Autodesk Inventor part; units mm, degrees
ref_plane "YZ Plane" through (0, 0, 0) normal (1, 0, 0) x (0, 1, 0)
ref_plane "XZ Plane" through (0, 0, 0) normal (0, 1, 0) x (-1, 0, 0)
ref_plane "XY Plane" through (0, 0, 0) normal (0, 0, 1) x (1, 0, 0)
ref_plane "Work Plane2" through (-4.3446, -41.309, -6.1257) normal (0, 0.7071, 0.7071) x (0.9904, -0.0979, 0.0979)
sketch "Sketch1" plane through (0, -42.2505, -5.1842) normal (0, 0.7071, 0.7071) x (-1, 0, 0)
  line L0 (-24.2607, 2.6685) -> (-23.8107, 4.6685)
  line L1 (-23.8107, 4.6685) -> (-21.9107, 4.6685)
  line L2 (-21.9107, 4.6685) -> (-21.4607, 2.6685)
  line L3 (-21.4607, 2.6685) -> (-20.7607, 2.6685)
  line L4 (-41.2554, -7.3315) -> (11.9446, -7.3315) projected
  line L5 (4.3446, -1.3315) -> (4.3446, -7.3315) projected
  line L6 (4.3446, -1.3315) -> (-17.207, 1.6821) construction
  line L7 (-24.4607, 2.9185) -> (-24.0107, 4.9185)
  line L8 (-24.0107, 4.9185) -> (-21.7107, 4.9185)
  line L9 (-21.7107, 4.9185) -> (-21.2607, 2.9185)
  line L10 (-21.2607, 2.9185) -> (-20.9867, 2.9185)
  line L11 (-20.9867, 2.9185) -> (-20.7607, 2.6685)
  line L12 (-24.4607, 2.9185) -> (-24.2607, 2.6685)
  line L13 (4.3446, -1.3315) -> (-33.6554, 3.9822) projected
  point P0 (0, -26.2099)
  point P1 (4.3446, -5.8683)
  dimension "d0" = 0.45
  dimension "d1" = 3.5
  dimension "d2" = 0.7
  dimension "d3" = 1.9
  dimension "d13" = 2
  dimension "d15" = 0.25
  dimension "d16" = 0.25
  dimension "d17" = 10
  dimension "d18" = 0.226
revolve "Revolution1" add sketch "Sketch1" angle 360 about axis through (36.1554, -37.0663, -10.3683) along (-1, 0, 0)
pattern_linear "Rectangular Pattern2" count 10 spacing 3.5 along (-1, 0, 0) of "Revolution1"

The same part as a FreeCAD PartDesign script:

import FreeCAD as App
import Part
import Sketcher

doc = App.newDocument("Part")
params = doc.addObject("Spreadsheet::Sheet", "Params")
for row, (alias, value) in enumerate([
    ("sketch1_width", "1.9 mm"),
    ("sketch1_width2", "0.7 mm"),
    ("revolution_angle", "360 deg"),
    ("linearpattern_pitch", "3.5 mm"),
], start=1):
    params.set(f"A{row}", alias)
    params.set(f"B{row}", "=" + value)
    params.setAlias(f"B{row}", alias)

body = doc.addObject("PartDesign::Body", "Body")
body.AllowCompound = True

# Sketch on an angled plane
sketch1 = body.newObject("Sketcher::SketchObject", "Sketch")
sketch1.Placement = App.Placement(App.Vector(0, -42.2505, -5.1842), App.Rotation(App.Vector(-1, 0, 0), App.Vector(0, -0.707106781, 0.707106781), App.Vector(0, 0.707106781, 0.707106781), "ZXY"))
sketch1.addGeometry([
    Part.LineSegment(App.Vector(-24.4607, 2.9185, 0), App.Vector(-24.2607, 2.6685, 0)),  # 0
    Part.LineSegment(App.Vector(-24.2607, 2.6685, 0), App.Vector(-23.8107, 4.6685, 0)),  # 1
    Part.LineSegment(App.Vector(-23.8107, 4.6685, 0), App.Vector(-21.9107, 4.6685, 0)),  # 2
    Part.LineSegment(App.Vector(-21.9107, 4.6685, 0), App.Vector(-21.4607, 2.6685, 0)),  # 3
    Part.LineSegment(App.Vector(-21.4607, 2.6685, 0), App.Vector(-20.7607, 2.6685, 0)),  # 4
    Part.LineSegment(App.Vector(-20.7607, 2.6685, 0), App.Vector(-20.9867, 2.9185, 0)),  # 5
    Part.LineSegment(App.Vector(-20.9867, 2.9185, 0), App.Vector(-21.2607, 2.9185, 0)),  # 6
    Part.LineSegment(App.Vector(-21.2607, 2.9185, 0), App.Vector(-21.7107, 4.9185, 0)),  # 7
    Part.LineSegment(App.Vector(-21.7107, 4.9185, 0), App.Vector(-24.0107, 4.9185, 0)),  # 8
    Part.LineSegment(App.Vector(-24.0107, 4.9185, 0), App.Vector(-24.4607, 2.9185, 0)),  # 9
], False)
sketch1.addGeometry(Part.LineSegment(App.Vector(-24.4607, -7.331495, 0), App.Vector(-20.7607, -7.331495, 0)), True)  # axis
sketch1.addConstraint([
    Sketcher.Constraint("Coincident", 0, 2, 1, 1),
    Sketcher.Constraint("Coincident", 1, 2, 2, 1),
    Sketcher.Constraint("Coincident", 2, 2, 3, 1),
    Sketcher.Constraint("Coincident", 3, 2, 4, 1),
    Sketcher.Constraint("Coincident", 4, 2, 5, 1),
    Sketcher.Constraint("Coincident", 5, 2, 6, 1),
    Sketcher.Constraint("Coincident", 6, 2, 7, 1),
    Sketcher.Constraint("Coincident", 7, 2, 8, 1),
    Sketcher.Constraint("Coincident", 8, 2, 9, 1),
    Sketcher.Constraint("Coincident", 9, 2, 0, 1),
    Sketcher.Constraint("Horizontal", 2),
    Sketcher.Constraint("Horizontal", 4),
    Sketcher.Constraint("Horizontal", 6),
    Sketcher.Constraint("Horizontal", 8),
    Sketcher.Constraint("Horizontal", 10),
    Sketcher.Constraint("Parallel", 3, 7),
    Sketcher.Constraint("Parallel", 1, 9),
    Sketcher.Constraint("Horizontal", 0, 2, 3, 2),
    Sketcher.Constraint("Horizontal", 6, 2, 9, 2),
    Sketcher.Constraint("Vertical", 9, 2, 10, 1),
    Sketcher.Constraint("Vertical", 4, 2, 10, 2),
    Sketcher.Constraint("Equal", 1, 3),
    Sketcher.Constraint("Equal", 3, 7),
    Sketcher.Constraint("DistanceX", 2, 1, 2, 2, 1.9),
    Sketcher.Constraint("DistanceX", 4, 1, 4, 2, 0.7),
    Sketcher.Constraint("DistanceY", 0, 2, 1, 2, 2.0),
    Sketcher.Constraint("DistanceY", 10, 1, 0, 2, 10.0),
    Sketcher.Constraint("DistanceX", 0, 2, 4, 2, 3.5),
    Sketcher.Constraint("DistanceY", 4, 2, 5, 2, 0.25),
    Sketcher.Constraint("DistanceX", 7, 2, 3, 2, 0.25),
    Sketcher.Constraint("DistanceX", 0, 2, 8, 2, 0.25),
    Sketcher.Constraint("DistanceX", 5, 2, 4, 2, 0.226),
    Sketcher.Constraint("DistanceX", 0, 2, -1, 1, 24.2607),
    Sketcher.Constraint("DistanceY", -1, 1, 0, 2, 2.6685),
])
sketch1.setExpression("Constraints[23]", "Params.sketch1_width")
sketch1.setExpression("Constraints[24]", "Params.sketch1_width2")
revolution = body.newObject("PartDesign::Revolution", "Revolution")
revolution.Profile = sketch1
revolution.ReferenceAxis = (sketch1, ["Axis0"])
revolution.setExpression("Angle", "Params.revolution_angle")
doc.recompute()

linearpattern = body.newObject("PartDesign::LinearPattern", "LinearPattern")
linearpattern.Originals = [revolution]
linearpattern.Direction = (doc.getObject("X_Axis"), [""])
linearpattern.Mode = "offset"
linearpattern.setExpression("Offset", "Params.linearpattern_pitch")
linearpattern.Occurrences = 10
linearpattern.Reversed = True
body.Tip = linearpattern

doc.recompute()
